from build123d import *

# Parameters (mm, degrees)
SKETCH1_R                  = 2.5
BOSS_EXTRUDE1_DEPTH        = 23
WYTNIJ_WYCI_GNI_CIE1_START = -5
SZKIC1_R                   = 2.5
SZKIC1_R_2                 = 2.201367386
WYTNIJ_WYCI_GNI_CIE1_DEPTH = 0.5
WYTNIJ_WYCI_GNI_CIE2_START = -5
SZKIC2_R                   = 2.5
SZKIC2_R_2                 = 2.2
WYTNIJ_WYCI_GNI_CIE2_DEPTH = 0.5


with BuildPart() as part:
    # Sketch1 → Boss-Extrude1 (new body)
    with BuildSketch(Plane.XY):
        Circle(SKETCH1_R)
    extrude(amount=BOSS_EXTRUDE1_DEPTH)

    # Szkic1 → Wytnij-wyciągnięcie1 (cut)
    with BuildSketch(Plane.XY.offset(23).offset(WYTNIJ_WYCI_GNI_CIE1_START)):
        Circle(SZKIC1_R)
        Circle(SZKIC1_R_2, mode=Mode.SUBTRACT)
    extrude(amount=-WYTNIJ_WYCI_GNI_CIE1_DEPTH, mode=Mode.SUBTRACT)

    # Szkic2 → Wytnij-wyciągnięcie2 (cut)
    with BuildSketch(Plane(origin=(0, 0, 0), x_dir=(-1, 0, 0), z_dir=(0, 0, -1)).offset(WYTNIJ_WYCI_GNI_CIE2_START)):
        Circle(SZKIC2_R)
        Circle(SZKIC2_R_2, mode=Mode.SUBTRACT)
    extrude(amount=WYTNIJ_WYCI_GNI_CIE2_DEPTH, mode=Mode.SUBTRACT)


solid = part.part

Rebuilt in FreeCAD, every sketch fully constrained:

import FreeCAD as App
import Part
import Sketcher
Q = App.Units.Quantity

doc = App.newDocument("Part")
body = doc.addObject("PartDesign::Body", "Body")

sketch1 = body.newObject("Sketcher::SketchObject", "Sketch")
sketch1.AttachmentSupport = (doc.getObject("XY_Plane"), [""])
sketch1.MapMode = "FlatFace"
sketch1.addGeometry(Part.Circle(App.Vector(0, 0, 0), App.Vector(0, 0, 1), 2.5), False)
sketch1.addConstraint([
    Sketcher.Constraint("Coincident", 0, 3, -1, 1),
    Sketcher.Constraint("Diameter", 0, Q("5 mm")),
])
pad1 = body.newObject("PartDesign::Pad", "Pad")
pad1.Profile = sketch1
pad1.Length = 23

sketch2 = body.newObject("Sketcher::SketchObject", "Sketch001")
sketch2.AttachmentSupport = (doc.getObject("XY_Plane"), [""])
sketch2.MapMode = "FlatFace"
sketch2.AttachmentOffset = App.Placement(App.Vector(0, 0, 18), App.Rotation())
sketch2.addGeometry([
    Part.Circle(App.Vector(0, 0, 0), App.Vector(0, 0, 1), 2.5),
    Part.Circle(App.Vector(0, 0, 0), App.Vector(0, 0, 1), 2.201367),
], False)
sketch2.addConstraint([
    Sketcher.Constraint("Coincident", 0, 3, -1, 1),
    Sketcher.Constraint("Coincident", 1, 3, -1, 1),
    Sketcher.Constraint("Diameter", 0, Q("5 mm")),
    Sketcher.Constraint("Diameter", 1, Q("4.402735 mm")),
])
pocket1 = body.newObject("PartDesign::Pocket", "Pocket")
pocket1.Profile = sketch2
pocket1.Length = 0.5

sketch3 = body.newObject("Sketcher::SketchObject", "Sketch002")
sketch3.AttachmentSupport = (doc.getObject("XY_Plane"), [""])
sketch3.MapMode = "FlatFace"
sketch3.AttachmentOffset = App.Placement(App.Vector(0, 0, 5), App.Rotation())
sketch3.addGeometry([
    Part.Circle(App.Vector(0, 0, 0), App.Vector(0, 0, 1), 2.5),
    Part.Circle(App.Vector(0, 0, 0), App.Vector(0, 0, 1), 2.2),
], False)
sketch3.addConstraint([
    Sketcher.Constraint("Coincident", 0, 3, -1, 1),
    Sketcher.Constraint("Coincident", 1, 3, -1, 1),
    Sketcher.Constraint("Diameter", 0, Q("5 mm")),
    Sketcher.Constraint("Diameter", 1, Q("4.4 mm")),
])
pocket2 = body.newObject("PartDesign::Pocket", "Pocket001")
pocket2.Profile = sketch3
pocket2.Length = 0.5

doc.recompute()
